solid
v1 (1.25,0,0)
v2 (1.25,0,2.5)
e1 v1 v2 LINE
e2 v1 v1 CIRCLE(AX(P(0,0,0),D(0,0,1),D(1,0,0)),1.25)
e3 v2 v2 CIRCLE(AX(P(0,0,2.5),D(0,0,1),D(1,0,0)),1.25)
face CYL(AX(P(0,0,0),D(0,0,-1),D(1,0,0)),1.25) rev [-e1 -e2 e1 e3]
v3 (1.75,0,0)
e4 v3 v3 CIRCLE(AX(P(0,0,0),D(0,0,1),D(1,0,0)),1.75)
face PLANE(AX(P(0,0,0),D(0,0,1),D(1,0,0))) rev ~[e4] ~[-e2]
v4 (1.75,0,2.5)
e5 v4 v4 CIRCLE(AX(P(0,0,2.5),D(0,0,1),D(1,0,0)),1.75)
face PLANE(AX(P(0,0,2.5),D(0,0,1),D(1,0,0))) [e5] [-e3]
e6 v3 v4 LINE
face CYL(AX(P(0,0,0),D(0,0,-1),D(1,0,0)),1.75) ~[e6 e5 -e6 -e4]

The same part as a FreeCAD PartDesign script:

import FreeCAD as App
import Part
import Sketcher

doc = App.newDocument("Part")
params = doc.addObject("Spreadsheet::Sheet", "Params")
for row, (alias, value) in enumerate([
    ("sketch1_diameter", "3.5 mm"),
    ("sketch1_diameter2", "2.5 mm"),
    ("pad1_length", "2.5 mm"),
], start=1):
    params.set(f"A{row}", alias)
    params.set(f"B{row}", "=" + value)
    params.setAlias(f"B{row}", alias)

body = doc.addObject("PartDesign::Body", "Body")

sketch1 = doc.addObject("Sketcher::SketchObject", "Sketch")
body.addObject(sketch1)
sketch1.AttachmentSupport = (doc.XY_Plane, [""])
sketch1.MapMode = "FlatFace"
sketch1.addGeometry(Part.Circle(App.Vector(0, 0, 0), App.Vector(0, 0, 1), 1.8), False)
sketch1.addGeometry(Part.Circle(App.Vector(0, 0, 0), App.Vector(0, 0, 1), 1.2), False)
sketch1.addConstraint(Sketcher.Constraint("Coincident", 0, 3, -1, 1))
sketch1.addConstraint(Sketcher.Constraint("Coincident", 1, 3, -1, 1))
sketch1.addConstraint(Sketcher.Constraint("Diameter", 0, 3.5))
sketch1.addConstraint(Sketcher.Constraint("Diameter", 1, 2.5))
sketch1.setExpression("Constraints[2]", "Params.sketch1_diameter")
sketch1.setExpression("Constraints[3]", "Params.sketch1_diameter2")
pad1 = doc.addObject("PartDesign::Pad", "Pad")
body.addObject(pad1)
pad1.Profile = sketch1
pad1.setExpression("Length", "Params.pad1_length")

doc.recompute()
